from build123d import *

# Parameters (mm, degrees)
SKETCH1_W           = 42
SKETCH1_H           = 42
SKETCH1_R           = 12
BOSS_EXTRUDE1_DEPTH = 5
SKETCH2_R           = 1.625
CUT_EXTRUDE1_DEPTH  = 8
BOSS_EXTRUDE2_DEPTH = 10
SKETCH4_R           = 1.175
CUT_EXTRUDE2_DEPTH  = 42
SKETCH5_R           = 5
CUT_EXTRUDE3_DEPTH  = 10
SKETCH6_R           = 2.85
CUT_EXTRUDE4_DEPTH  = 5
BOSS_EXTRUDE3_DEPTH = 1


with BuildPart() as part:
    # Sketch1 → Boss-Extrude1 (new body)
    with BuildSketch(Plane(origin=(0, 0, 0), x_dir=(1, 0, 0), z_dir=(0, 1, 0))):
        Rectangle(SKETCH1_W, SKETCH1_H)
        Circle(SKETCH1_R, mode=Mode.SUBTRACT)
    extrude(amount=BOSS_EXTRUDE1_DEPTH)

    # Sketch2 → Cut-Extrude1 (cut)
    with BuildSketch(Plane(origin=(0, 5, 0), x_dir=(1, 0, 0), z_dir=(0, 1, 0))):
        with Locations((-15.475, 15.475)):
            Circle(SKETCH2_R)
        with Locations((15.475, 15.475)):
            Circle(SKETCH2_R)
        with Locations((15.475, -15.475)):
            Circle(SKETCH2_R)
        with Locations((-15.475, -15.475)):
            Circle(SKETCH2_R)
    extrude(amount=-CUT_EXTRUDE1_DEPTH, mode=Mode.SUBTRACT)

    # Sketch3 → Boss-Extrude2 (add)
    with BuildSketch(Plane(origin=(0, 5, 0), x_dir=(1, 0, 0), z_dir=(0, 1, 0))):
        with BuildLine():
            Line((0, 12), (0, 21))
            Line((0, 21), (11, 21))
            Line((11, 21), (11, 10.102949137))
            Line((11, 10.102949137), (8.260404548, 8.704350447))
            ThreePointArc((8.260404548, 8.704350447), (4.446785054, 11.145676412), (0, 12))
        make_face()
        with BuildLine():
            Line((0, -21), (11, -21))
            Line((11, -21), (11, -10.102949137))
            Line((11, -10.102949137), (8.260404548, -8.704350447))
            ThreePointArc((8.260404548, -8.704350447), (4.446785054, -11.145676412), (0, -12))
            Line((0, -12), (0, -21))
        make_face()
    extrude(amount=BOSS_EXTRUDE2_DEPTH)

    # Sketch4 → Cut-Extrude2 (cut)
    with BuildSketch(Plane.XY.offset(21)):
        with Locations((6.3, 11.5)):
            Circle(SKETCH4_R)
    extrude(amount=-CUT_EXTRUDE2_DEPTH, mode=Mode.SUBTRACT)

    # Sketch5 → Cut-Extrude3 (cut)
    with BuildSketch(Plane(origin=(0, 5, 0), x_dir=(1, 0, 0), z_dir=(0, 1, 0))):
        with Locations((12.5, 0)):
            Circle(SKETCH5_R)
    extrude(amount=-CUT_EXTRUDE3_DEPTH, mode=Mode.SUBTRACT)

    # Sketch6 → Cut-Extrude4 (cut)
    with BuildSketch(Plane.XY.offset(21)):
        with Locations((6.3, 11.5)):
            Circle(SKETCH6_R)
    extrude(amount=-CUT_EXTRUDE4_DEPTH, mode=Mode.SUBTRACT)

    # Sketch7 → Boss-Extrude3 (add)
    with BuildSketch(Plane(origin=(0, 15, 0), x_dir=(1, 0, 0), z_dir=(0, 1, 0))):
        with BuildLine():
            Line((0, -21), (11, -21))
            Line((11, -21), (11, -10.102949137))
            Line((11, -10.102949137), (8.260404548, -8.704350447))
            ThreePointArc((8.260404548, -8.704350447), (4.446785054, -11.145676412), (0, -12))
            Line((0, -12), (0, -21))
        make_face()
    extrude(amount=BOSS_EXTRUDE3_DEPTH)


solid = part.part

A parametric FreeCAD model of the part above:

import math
import FreeCAD as App
import Part
import Sketcher

V = App.Vector
Q = App.Units.Quantity


def add_polygon(sketch, points):
    """Adds a closed chain of lines whose ends are joined by coincident constraints."""
    first, n = sketch.GeometryCount, len(points)
    for a, b in zip(points, points[1:] + points[:1]):
        sketch.addGeometry(Part.LineSegment(App.Vector(*a, 0), App.Vector(*b, 0)), False)
    for i in range(n):
        sketch.addConstraint(Sketcher.Constraint("Coincident", first + i, 2, first + (i + 1) % n, 1))

doc = App.newDocument("Part")
body = doc.addObject("PartDesign::Body", "Body")

# Sketch on XZ plane
sketch1 = body.newObject("Sketcher::SketchObject", "Sketch")
sketch1.AttachmentSupport = (doc.getObject("XZ_Plane"), [""])
sketch1.MapMode = "FlatFace"
add_polygon(sketch1, [(-21, -21), (-21, 21), (21, 21), (21, -21)])  # lines 0-3
sketch1.addGeometry(Part.Circle(V(0, 0, 0), V(0, 0, 1), 12), False)  # 4
sketch1.addConstraint([
    Sketcher.Constraint("Vertical", 0),
    Sketcher.Constraint("Horizontal", 1),
    Sketcher.Constraint("Vertical", 2),
    Sketcher.Constraint("Horizontal", 3),
    Sketcher.Constraint("Coincident", 4, 3, -1, 1),
    Sketcher.Constraint("Symmetric", 0, 2, 2, 2, -1, 1),
    Sketcher.Constraint("Equal", 3, 0),
    Sketcher.Constraint("Diameter", 4, Q("24 mm")),
    Sketcher.Constraint("DistanceX", 1, 1, 1, 2, Q("42 mm")),
])
pad1 = body.newObject("PartDesign::Pad", "Pad")
pad1.Profile = sketch1
pad1.Length = 5
pad1.Reversed = True

# Sketch on XZ plane
sketch2 = body.newObject("Sketcher::SketchObject", "Sketch001")
sketch2.AttachmentSupport = (doc.getObject("XZ_Plane"), [""])
sketch2.MapMode = "FlatFace"
sketch2.AttachmentOffset = App.Placement(V(0, 0, -5), App.Rotation())
sketch2.addGeometry([
    Part.Circle(V(-15.475, -15.475, 0), V(0, 0, 1), 1.625),
    Part.Circle(V(15.475, -15.475, 0), V(0, 0, 1), 1.625),
    Part.Circle(V(15.475, 15.475, 0), V(0, 0, 1), 1.625),
    Part.Circle(V(-15.475, 15.475, 0), V(0, 0, 1), 1.625),
], False)
sketch2.addConstraint([
    Sketcher.Constraint("Equal", 0, 1),
    Sketcher.Constraint("Equal", 1, 2),
    Sketcher.Constraint("Equal", 2, 3),
    Sketcher.Constraint("Symmetric", 0, 3, 2, 3, -1, 1),
    Sketcher.Constraint("Symmetric", 1, 3, 3, 3, -1, 1),
    Sketcher.Constraint("Symmetric", 0, 3, 1, 3, -2),
    Sketcher.Constraint("Diameter", 0, Q("3.25 mm")),
    Sketcher.Constraint("DistanceX", 0, 3, 1, 3, Q("30.95 mm")),
    Sketcher.Constraint("DistanceY", 1, 3, 2, 3, Q("30.95 mm")),
])
pocket1 = body.newObject("PartDesign::Pocket", "Pocket")
pocket1.Profile = sketch2
pocket1.Length = 8
pocket1.Reversed = True

# Sketch on XZ plane
sketch3 = body.newObject("Sketcher::SketchObject", "Sketch002")
sketch3.AttachmentSupport = (doc.getObject("XZ_Plane"), [""])
sketch3.MapMode = "FlatFace"
sketch3.AttachmentOffset = App.Placement(V(0, 0, -5), App.Rotation())
sketch3.addGeometry([
    Part.LineSegment(V(0, -21, 0), V(0, -12, 0)),  # 0
    Part.ArcOfCircle(Part.Circle(V(0, 0, 0), V(0, 0, 1), 12), math.radians(-90), math.radians(-46.499015)),  # 1
    Part.LineSegment(V(8.260405, -8.70435, 0), V(11, -10.102949, 0)),  # 2
    Part.LineSegment(V(11, -10.102949, 0), V(11, -21, 0)),  # 3
    Part.LineSegment(V(11, -21, 0), V(0, -21, 0)),  # 4
    Part.LineSegment(V(0, 21, 0), V(11, 21, 0)),  # 5
    Part.LineSegment(V(11, 21, 0), V(11, 10.102949, 0)),  # 6
    Part.LineSegment(V(11, 10.102949, 0), V(8.260405, 8.70435, 0)),  # 7
    Part.ArcOfCircle(Part.Circle(V(0, 0, 0), V(0, 0, 1), 12), math.radians(46.499015), math.radians(90)),  # 8
    Part.LineSegment(V(0, 12, 0), V(0, 21, 0)),  # 9
], False)
sketch3.addConstraint([
    Sketcher.Constraint("Coincident", 0, 2, 1, 1),
    Sketcher.Constraint("Coincident", 1, 2, 2, 1),
    Sketcher.Constraint("Coincident", 2, 2, 3, 1),
    Sketcher.Constraint("Coincident", 3, 2, 4, 1),
    Sketcher.Constraint("Coincident", 4, 2, 0, 1),
    Sketcher.Constraint("Coincident", 5, 2, 6, 1),
    Sketcher.Constraint("Coincident", 6, 2, 7, 1),
    Sketcher.Constraint("Coincident", 7, 2, 8, 1),
    Sketcher.Constraint("Coincident", 8, 2, 9, 1),
    Sketcher.Constraint("Coincident", 9, 2, 5, 1),
    Sketcher.Constraint("Vertical", 0),
    Sketcher.Constraint("Vertical", 3),
    Sketcher.Constraint("Horizontal", 4),
    Sketcher.Constraint("Horizontal", 5),
    Sketcher.Constraint("Vertical", 6),
    Sketcher.Constraint("Vertical", 9),
    Sketcher.Constraint("Coincident", 1, 3, -1, 1),
    Sketcher.Constraint("Coincident", 8, 3, -1, 1),
    Sketcher.Constraint("Equal", 1, 8),
    Sketcher.Constraint("Symmetric", 4, 2, 9, 2, -1, 1),
    Sketcher.Constraint("Symmetric", 2, 2, 6, 2, -1),
    Sketcher.Constraint("PointOnObject", 0, 2, -2),
    Sketcher.Constraint("Vertical", 1, 2, 7, 2),
    Sketcher.Constraint("Radius", 1, Q("12 mm")),
    Sketcher.Constraint("DistanceX", 4, 2, 4, 1, Q("11 mm")),
    Sketcher.Constraint("DistanceY", 0, 1, 0, 2, Q("9 mm")),
    Sketcher.Constraint("DistanceY", 3, 2, 3, 1, Q("10.897051 mm")),
    Sketcher.Constraint("DistanceY", 2, 2, 1, 2, Q("1.398599 mm")),
])
pad2 = body.newObject("PartDesign::Pad", "Pad001")
pad2.Profile = sketch3
pad2.Length = 10
pad2.Reversed = True

# Sketch on XY plane
sketch4 = body.newObject("Sketcher::SketchObject", "Sketch003")
sketch4.AttachmentSupport = (doc.getObject("XY_Plane"), [""])
sketch4.MapMode = "FlatFace"
sketch4.AttachmentOffset = App.Placement(V(0, 0, 21), App.Rotation())
sketch4.addGeometry(Part.Circle(V(6.3, 11.5, 0), V(0, 0, 1), 1.175), False)
sketch4.addConstraint([
    Sketcher.Constraint("Diameter", 0, Q("2.35 mm")),
    Sketcher.Constraint("DistanceX", -1, 1, 0, 3, Q("6.3 mm")),
    Sketcher.Constraint("DistanceY", -1, 1, 0, 3, Q("11.5 mm")),
])
pocket2 = body.newObject("PartDesign::Pocket", "Pocket001")
pocket2.Profile = sketch4
pocket2.Length = 42

# Sketch on XZ plane
sketch5 = body.newObject("Sketcher::SketchObject", "Sketch004")
sketch5.AttachmentSupport = (doc.getObject("XZ_Plane"), [""])
sketch5.MapMode = "FlatFace"
sketch5.AttachmentOffset = App.Placement(V(0, 0, -5), App.Rotation())
sketch5.addGeometry(Part.Circle(V(12.5, 0, 0), V(0, 0, 1), 5), False)
sketch5.addConstraint([
    Sketcher.Constraint("PointOnObject", 0, 3, -1),
    Sketcher.Constraint("Diameter", 0, Q("10 mm")),
    Sketcher.Constraint("DistanceX", -1, 1, 0, 3, Q("12.5 mm")),
])
pocket3 = body.newObject("PartDesign::Pocket", "Pocket002")
pocket3.Profile = sketch5
pocket3.Length = 10
pocket3.Reversed = True

# Sketch on XY plane
sketch6 = body.newObject("Sketcher::SketchObject", "Sketch005")
sketch6.AttachmentSupport = (doc.getObject("XY_Plane"), [""])
sketch6.MapMode = "FlatFace"
sketch6.AttachmentOffset = App.Placement(V(0, 0, 21), App.Rotation())
sketch6.addGeometry(Part.Circle(V(6.3, 11.5, 0), V(0, 0, 1), 2.85), False)
sketch6.addConstraint([
    Sketcher.Constraint("Diameter", 0, Q("5.7 mm")),
    Sketcher.Constraint("DistanceX", -1, 1, 0, 3, Q("6.3 mm")),
    Sketcher.Constraint("DistanceY", -1, 1, 0, 3, Q("11.5 mm")),
])
pocket4 = body.newObject("PartDesign::Pocket", "Pocket003")
pocket4.Profile = sketch6
pocket4.Length = 5

# Sketch on XZ plane
sketch7 = body.newObject("Sketcher::SketchObject", "Sketch006")
sketch7.AttachmentSupport = (doc.getObject("XZ_Plane"), [""])
sketch7.MapMode = "FlatFace"
sketch7.AttachmentOffset = App.Placement(V(0, 0, -15), App.Rotation())
sketch7.addGeometry([
    Part.LineSegment(V(0, 21, 0), V(11, 21, 0)),  # 0
    Part.LineSegment(V(11, 21, 0), V(11, 10.102949, 0)),  # 1
    Part.LineSegment(V(11, 10.102949, 0), V(8.260405, 8.70435, 0)),  # 2
    Part.ArcOfCircle(Part.Circle(V(0, 0, 0), V(0, 0, 1), 12), math.radians(46.499015), math.radians(90)),  # 3
    Part.LineSegment(V(0, 12, 0), V(0, 21, 0)),  # 4
], False)
sketch7.addConstraint([
    Sketcher.Constraint("Coincident", 0, 2, 1, 1),
    Sketcher.Constraint("Coincident", 1, 2, 2, 1),
    Sketcher.Constraint("Coincident", 2, 2, 3, 1),
    Sketcher.Constraint("Coincident", 3, 2, 4, 1),
    Sketcher.Constraint("Coincident", 4, 2, 0, 1),
    Sketcher.Constraint("Horizontal", 0),
    Sketcher.Constraint("Vertical", 1),
    Sketcher.Constraint("Vertical", 4),
    Sketcher.Constraint("Coincident", 3, 3, -1, 1),
    Sketcher.Constraint("PointOnObject", 3, 2, -2),
    Sketcher.Constraint("Radius", 3, Q("12 mm")),
    Sketcher.Constraint("DistanceX", 0, 1, 0, 2, Q("11 mm")),
    Sketcher.Constraint("DistanceY", 4, 1, 4, 2, Q("9 mm")),
    Sketcher.Constraint("DistanceY", 1, 2, 1, 1, Q("10.897051 mm")),
    Sketcher.Constraint("DistanceY", 2, 2, 1, 2, Q("1.398599 mm")),
])
pad3 = body.newObject("PartDesign::Pad", "Pad002")
pad3.Profile = sketch7
pad3.Length = 1
pad3.Reversed = True

doc.recompute()
